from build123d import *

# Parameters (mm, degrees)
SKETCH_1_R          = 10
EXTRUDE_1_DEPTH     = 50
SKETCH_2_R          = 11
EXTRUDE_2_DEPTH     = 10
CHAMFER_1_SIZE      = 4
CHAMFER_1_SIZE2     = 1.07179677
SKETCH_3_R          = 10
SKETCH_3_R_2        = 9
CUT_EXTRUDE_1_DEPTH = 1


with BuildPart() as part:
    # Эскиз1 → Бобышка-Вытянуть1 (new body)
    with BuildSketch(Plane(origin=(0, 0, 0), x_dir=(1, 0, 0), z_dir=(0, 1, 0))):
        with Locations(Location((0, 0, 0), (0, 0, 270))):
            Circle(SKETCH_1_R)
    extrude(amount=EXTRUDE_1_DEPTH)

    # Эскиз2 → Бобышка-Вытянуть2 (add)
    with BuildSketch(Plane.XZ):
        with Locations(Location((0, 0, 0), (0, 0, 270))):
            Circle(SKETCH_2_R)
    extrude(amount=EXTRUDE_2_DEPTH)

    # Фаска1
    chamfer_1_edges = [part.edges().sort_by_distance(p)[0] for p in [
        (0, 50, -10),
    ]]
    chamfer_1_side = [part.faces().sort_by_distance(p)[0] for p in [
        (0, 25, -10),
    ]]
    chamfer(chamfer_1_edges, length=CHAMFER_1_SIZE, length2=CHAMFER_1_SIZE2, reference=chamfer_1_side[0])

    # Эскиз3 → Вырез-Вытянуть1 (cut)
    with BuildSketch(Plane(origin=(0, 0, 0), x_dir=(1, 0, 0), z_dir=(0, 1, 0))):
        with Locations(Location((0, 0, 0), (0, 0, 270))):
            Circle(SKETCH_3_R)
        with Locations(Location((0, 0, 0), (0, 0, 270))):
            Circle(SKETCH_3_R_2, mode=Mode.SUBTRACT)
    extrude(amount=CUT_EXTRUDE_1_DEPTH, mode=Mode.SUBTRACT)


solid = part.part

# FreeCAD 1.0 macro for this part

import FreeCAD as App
import Part
import Sketcher


def edges_at(feature, points):
    """Names of the edges that pass closest to the given points."""
    edges = feature.Shape.Edges
    near = lambda p: min(range(len(edges)), key=lambda i: edges[i].distToShape(Part.Vertex(*p))[0])
    return sorted({f"Edge{near(p) + 1}" for p in points})

doc = App.newDocument("Part")
body = doc.addObject("PartDesign::Body", "Body")

# Sketch on XZ plane
sketch1 = body.newObject("Sketcher::SketchObject", "Sketch")
sketch1.AttachmentSupport = (doc.getObject("XZ_Plane"), [""])
sketch1.MapMode = "FlatFace"
sketch1.addGeometry(Part.Circle(App.Vector(0, 0, 0), App.Vector(0, 0, 1), 10), False)
sketch1.addConstraint(Sketcher.Constraint("Coincident", 0, 3, -1, 1))
sketch1.addConstraint(Sketcher.Constraint("Diameter", 0, 20.0))
pad1 = body.newObject("PartDesign::Pad", "Pad")
pad1.Profile = sketch1
pad1.Length = 50
pad1.Reversed = True

# Sketch on XZ plane
sketch2 = body.newObject("Sketcher::SketchObject", "Sketch001")
sketch2.AttachmentSupport = (doc.getObject("XZ_Plane"), [""])
sketch2.MapMode = "FlatFace"
sketch2.addGeometry(Part.Circle(App.Vector(0, 0, 0), App.Vector(0, 0, 1), 11), False)
sketch2.addConstraint(Sketcher.Constraint("Coincident", 0, 3, -1, 1))
sketch2.addConstraint(Sketcher.Constraint("Diameter", 0, 22.0))
pad2 = body.newObject("PartDesign::Pad", "Pad001")
pad2.Profile = sketch2
pad2.Length = 10
doc.recompute()

chamfer = body.newObject("PartDesign::Chamfer", "Chamfer")
chamfer.Base = (pad2, edges_at(pad2, [(0, 50, -10)]))
chamfer.ChamferType = "Two distances"
chamfer.Size = 4
chamfer.Size2 = 1.071797

# Sketch on XZ plane
sketch3 = body.newObject("Sketcher::SketchObject", "Sketch002")
sketch3.AttachmentSupport = (doc.getObject("XZ_Plane"), [""])
sketch3.MapMode = "FlatFace"
sketch3.addGeometry(Part.Circle(App.Vector(0, 0, 0), App.Vector(0, 0, 1), 10), False)
sketch3.addGeometry(Part.Circle(App.Vector(0, 0, 0), App.Vector(0, 0, 1), 9), False)
sketch3.addConstraint(Sketcher.Constraint("Coincident", 0, 3, -1, 1))
sketch3.addConstraint(Sketcher.Constraint("Coincident", 1, 3, -1, 1))
sketch3.addConstraint(Sketcher.Constraint("Diameter", 0, 20.0))
sketch3.addConstraint(Sketcher.Constraint("Diameter", 1, 18.0))
pocket1 = body.newObject("PartDesign::Pocket", "Pocket")
pocket1.Profile = sketch3
pocket1.Length = 1

doc.recompute()
